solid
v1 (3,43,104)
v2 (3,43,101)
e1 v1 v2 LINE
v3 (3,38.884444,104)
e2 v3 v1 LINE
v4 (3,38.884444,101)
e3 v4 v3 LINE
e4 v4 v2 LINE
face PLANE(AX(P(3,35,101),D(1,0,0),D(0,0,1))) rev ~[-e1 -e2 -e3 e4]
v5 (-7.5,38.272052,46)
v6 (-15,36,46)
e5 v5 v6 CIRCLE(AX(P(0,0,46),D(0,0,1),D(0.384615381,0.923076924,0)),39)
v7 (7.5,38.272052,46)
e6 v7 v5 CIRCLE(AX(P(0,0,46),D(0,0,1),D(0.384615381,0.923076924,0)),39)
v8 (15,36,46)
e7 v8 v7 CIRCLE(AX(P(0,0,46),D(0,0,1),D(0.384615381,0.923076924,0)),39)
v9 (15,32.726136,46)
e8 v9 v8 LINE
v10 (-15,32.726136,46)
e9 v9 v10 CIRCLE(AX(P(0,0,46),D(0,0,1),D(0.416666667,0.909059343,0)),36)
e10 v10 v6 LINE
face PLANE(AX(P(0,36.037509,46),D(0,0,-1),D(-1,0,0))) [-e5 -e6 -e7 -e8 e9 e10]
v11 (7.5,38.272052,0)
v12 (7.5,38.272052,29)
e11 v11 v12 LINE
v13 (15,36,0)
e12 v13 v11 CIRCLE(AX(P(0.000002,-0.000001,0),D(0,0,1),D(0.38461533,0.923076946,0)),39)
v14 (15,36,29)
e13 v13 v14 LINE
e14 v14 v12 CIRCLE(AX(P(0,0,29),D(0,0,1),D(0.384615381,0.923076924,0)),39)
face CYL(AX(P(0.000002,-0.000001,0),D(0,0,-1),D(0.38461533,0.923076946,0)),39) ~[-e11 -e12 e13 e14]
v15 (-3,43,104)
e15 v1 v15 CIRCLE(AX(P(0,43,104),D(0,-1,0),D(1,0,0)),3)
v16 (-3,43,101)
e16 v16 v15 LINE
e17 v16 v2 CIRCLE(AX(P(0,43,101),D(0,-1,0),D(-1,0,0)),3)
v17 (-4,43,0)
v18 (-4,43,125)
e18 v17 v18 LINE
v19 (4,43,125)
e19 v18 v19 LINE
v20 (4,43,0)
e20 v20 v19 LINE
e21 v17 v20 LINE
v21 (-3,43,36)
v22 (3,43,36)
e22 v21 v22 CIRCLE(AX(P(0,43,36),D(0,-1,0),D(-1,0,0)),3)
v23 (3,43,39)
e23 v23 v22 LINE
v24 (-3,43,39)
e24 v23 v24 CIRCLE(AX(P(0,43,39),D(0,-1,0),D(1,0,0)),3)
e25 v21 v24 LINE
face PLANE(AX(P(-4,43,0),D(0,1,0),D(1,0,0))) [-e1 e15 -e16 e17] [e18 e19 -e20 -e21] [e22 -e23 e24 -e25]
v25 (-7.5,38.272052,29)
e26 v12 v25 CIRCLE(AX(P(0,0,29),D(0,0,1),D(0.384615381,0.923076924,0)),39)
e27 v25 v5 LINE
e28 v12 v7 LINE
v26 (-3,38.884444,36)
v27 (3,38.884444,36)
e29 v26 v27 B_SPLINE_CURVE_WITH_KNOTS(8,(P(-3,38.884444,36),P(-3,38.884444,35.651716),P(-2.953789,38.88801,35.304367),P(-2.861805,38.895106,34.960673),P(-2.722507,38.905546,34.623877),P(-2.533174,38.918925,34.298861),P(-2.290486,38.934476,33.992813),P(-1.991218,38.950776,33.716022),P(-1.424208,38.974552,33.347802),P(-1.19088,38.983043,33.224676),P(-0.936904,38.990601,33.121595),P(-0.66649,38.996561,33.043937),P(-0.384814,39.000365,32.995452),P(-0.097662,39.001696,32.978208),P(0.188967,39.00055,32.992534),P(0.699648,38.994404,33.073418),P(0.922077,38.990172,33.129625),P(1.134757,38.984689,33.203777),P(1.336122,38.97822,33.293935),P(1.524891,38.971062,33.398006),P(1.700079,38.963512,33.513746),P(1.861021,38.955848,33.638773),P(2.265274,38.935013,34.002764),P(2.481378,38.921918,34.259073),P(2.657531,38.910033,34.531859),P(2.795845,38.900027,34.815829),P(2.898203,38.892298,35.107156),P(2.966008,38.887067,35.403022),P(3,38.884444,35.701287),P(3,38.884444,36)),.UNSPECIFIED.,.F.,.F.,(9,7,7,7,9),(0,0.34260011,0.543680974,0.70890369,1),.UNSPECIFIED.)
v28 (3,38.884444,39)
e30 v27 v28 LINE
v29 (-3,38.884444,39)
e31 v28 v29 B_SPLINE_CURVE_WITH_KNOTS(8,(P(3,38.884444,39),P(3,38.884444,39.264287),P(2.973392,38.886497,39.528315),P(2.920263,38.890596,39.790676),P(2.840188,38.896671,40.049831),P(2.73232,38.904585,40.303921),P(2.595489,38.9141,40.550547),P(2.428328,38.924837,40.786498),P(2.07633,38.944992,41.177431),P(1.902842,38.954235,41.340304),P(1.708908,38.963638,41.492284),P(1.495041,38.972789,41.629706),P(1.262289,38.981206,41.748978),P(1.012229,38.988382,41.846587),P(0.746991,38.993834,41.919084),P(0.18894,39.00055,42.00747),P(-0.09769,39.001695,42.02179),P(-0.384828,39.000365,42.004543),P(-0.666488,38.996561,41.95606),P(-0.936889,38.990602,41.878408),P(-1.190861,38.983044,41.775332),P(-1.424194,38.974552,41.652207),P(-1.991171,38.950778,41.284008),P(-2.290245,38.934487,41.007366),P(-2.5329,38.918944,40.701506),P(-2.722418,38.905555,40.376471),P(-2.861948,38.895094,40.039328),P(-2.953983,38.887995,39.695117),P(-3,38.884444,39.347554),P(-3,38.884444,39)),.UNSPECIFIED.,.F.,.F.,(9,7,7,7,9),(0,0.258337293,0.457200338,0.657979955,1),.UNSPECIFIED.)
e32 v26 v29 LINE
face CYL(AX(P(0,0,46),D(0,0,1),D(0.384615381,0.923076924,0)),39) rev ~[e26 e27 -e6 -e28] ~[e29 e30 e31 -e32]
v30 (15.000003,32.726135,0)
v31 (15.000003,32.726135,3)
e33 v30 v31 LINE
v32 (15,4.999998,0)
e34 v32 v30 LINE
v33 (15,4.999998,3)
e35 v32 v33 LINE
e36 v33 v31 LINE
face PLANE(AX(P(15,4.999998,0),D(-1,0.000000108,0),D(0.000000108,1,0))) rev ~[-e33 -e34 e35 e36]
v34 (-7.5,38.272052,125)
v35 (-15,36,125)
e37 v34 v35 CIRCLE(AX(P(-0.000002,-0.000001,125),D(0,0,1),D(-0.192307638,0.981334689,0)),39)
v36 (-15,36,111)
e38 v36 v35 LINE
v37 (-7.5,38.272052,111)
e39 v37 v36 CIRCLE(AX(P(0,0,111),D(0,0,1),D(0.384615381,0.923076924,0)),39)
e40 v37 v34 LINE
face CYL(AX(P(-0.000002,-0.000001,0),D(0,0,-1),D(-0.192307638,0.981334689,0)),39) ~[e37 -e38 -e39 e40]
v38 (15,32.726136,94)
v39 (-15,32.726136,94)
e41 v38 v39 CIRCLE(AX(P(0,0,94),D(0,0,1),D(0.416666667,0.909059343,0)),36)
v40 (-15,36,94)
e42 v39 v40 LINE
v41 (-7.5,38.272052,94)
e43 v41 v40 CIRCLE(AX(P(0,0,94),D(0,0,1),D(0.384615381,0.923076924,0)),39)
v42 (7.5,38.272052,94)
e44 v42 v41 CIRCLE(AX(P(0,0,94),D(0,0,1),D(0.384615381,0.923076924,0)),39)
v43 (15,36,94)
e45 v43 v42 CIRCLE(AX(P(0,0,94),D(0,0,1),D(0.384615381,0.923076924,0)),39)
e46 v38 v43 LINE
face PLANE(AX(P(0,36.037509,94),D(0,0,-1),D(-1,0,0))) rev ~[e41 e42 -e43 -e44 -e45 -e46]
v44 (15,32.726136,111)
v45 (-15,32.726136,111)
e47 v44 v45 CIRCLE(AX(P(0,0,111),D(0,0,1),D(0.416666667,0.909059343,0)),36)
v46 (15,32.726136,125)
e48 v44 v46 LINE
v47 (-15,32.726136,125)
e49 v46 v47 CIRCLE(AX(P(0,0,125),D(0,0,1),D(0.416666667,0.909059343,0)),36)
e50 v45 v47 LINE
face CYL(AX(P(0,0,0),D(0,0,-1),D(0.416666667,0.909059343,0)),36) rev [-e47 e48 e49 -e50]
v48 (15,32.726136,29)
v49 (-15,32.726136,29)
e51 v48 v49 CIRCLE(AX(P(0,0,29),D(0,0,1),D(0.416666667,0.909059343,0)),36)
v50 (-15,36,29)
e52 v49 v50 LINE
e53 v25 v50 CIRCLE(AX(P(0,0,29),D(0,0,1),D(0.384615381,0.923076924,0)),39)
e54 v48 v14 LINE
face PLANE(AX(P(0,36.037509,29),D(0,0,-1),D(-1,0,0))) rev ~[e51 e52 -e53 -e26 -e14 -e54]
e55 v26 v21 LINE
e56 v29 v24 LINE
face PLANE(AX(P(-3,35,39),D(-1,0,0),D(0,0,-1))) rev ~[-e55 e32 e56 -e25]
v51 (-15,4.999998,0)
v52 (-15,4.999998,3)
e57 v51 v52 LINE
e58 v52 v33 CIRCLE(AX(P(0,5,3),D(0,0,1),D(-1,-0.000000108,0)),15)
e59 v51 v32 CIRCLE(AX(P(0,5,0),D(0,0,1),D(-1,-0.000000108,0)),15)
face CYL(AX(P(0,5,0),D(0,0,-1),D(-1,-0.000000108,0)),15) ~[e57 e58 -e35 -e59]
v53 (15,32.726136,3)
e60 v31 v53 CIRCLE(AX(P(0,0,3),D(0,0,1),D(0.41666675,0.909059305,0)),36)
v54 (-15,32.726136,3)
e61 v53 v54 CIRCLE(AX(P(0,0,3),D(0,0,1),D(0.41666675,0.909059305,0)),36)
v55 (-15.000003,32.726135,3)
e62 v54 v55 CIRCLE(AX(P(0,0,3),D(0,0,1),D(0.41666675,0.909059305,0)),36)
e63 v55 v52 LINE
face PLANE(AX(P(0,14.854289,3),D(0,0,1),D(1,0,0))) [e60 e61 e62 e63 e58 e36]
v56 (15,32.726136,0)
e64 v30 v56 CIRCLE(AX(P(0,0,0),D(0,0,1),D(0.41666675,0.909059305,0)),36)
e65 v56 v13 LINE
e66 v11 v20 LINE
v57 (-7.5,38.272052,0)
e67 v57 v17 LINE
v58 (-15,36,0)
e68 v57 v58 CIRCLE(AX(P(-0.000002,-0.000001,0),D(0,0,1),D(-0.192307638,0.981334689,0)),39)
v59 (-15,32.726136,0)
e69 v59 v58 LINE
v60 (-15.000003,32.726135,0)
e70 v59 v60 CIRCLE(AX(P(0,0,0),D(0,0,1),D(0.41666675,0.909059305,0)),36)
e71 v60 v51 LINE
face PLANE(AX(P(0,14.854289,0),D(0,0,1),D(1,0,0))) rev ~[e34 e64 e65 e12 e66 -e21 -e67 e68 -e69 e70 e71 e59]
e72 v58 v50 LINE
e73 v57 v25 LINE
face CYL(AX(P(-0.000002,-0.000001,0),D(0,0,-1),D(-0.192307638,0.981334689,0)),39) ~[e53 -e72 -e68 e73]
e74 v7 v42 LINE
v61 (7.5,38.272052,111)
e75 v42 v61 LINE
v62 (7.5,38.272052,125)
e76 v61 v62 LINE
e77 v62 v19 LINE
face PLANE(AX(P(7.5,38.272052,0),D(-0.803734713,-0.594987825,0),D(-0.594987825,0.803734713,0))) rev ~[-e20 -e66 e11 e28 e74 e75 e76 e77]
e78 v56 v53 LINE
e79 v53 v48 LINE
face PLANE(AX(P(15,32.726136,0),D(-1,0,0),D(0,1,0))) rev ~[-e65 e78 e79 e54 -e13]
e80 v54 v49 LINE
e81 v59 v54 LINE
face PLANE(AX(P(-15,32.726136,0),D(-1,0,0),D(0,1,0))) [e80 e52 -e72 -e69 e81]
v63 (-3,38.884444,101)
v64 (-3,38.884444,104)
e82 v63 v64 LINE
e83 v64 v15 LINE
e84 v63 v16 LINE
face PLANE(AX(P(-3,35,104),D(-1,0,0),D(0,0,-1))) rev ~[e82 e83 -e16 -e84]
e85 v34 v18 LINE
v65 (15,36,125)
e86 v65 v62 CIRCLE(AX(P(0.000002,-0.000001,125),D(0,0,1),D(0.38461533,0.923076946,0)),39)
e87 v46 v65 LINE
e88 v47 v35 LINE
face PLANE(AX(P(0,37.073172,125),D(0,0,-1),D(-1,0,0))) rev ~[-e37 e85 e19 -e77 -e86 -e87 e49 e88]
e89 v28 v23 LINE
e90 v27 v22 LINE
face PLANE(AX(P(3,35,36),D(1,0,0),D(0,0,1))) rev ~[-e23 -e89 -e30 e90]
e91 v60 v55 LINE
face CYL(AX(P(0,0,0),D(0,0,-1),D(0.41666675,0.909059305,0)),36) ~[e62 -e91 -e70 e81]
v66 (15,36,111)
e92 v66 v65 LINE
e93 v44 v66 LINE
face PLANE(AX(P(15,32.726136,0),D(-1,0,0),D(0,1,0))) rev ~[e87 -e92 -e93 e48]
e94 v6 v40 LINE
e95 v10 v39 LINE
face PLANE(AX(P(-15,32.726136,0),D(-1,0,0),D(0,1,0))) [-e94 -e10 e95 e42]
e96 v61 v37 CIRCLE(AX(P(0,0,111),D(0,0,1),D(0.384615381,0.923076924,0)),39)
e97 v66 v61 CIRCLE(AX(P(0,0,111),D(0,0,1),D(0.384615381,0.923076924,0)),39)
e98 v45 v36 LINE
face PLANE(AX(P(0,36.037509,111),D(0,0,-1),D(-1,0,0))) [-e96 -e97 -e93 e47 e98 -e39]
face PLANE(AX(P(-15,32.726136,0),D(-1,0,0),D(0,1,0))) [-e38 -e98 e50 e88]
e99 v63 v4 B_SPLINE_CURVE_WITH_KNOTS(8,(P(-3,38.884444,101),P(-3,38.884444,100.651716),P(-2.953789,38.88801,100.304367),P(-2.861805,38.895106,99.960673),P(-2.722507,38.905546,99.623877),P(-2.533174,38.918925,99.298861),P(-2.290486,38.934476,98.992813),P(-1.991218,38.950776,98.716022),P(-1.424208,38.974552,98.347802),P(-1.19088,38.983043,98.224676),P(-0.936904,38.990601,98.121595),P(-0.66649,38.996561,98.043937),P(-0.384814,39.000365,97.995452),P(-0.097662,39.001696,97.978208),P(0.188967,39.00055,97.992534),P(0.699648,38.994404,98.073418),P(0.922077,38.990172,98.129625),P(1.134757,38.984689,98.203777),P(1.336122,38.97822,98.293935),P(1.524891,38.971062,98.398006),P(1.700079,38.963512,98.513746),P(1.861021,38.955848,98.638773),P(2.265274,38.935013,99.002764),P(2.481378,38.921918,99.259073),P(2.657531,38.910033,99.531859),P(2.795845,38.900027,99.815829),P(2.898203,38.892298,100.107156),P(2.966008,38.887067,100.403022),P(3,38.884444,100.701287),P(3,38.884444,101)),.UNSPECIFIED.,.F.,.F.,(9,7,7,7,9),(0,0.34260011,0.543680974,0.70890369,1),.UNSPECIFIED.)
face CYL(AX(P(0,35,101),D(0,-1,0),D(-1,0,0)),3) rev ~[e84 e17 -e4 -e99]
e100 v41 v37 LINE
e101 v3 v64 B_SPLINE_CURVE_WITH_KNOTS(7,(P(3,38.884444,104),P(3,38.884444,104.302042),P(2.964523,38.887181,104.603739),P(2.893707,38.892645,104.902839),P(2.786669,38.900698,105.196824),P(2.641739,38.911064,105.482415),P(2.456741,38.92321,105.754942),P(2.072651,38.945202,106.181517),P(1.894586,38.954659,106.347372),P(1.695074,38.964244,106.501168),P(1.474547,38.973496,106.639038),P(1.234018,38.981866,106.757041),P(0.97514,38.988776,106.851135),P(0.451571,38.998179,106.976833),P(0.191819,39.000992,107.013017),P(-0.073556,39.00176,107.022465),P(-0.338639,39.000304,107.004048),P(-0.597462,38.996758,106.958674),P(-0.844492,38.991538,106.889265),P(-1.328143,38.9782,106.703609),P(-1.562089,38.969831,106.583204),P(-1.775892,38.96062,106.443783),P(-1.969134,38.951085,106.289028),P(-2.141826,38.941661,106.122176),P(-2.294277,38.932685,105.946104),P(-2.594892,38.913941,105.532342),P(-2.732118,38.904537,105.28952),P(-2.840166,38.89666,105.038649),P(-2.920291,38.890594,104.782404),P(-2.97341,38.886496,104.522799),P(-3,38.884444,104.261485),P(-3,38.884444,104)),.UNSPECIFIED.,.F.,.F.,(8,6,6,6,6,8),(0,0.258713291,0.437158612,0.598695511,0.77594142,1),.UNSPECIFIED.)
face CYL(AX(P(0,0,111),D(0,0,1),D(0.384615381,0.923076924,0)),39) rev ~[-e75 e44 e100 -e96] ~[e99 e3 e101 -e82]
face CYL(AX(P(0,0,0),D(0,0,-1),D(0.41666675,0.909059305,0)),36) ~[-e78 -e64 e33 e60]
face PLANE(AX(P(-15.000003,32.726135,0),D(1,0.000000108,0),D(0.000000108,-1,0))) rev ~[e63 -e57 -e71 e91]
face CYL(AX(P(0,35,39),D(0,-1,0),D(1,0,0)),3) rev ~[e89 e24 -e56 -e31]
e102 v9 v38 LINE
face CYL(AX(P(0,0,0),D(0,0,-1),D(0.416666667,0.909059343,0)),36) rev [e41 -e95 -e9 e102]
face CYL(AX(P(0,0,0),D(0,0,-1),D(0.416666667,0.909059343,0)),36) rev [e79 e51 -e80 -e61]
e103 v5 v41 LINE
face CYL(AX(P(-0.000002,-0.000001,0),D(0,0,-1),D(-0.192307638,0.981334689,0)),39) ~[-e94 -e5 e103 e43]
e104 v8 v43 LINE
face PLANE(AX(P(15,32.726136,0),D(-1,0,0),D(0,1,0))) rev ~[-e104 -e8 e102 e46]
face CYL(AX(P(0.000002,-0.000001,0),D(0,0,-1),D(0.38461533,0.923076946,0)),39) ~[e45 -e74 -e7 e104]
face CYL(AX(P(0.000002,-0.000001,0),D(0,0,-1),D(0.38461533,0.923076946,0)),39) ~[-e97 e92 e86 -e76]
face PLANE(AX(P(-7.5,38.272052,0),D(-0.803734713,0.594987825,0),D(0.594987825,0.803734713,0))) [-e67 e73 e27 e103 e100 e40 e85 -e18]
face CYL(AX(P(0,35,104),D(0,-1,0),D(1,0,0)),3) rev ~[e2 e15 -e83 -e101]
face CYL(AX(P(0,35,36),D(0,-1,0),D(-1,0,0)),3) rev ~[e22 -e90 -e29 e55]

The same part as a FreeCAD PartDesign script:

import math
import FreeCAD as App
import Part
import Sketcher

V = App.Vector
Q = App.Units.Quantity

doc = App.newDocument("Part")
body = doc.addObject("PartDesign::Body", "Body")

sketch1 = body.newObject("Sketcher::SketchObject", "Sketch")
sketch1.AttachmentSupport = (doc.getObject("XY_Plane"), [""])
sketch1.MapMode = "FlatFace"
sketch1.addGeometry(Part.ArcOfCircle(Part.Circle(V(0, 0, 0), V(0, 0, 1), 36), math.radians(65.375682), math.radians(114.624318)), False)
sketch1.addGeometry(Part.LineSegment(V(15, 32.726136, 0), V(15, 36, 0)), False)
sketch1.addGeometry(Part.ArcOfCircle(Part.Circle(V(0.000002, -0.000001, 0), V(0, 0, 1), 39), math.radians(67.380138), math.radians(78.912514)), False)
sketch1.addGeometry(Part.LineSegment(V(7.5, 38.272052, 0), V(4, 43, 0)), False)
sketch1.addGeometry(Part.LineSegment(V(4, 43, 0), V(-4, 43, 0)), False)
sketch1.addGeometry(Part.LineSegment(V(-4, 43, 0), V(-7.5, 38.272052, 0)), False)
sketch1.addGeometry(Part.ArcOfCircle(Part.Circle(V(-0.000002, -0.000001, 0), V(0, 0, 1), 39), math.radians(101.087486), math.radians(112.619862)), False)
sketch1.addGeometry(Part.LineSegment(V(-15, 36, 0), V(-15, 32.726136, 0)), False)
sketch1.addConstraint(Sketcher.Constraint("Coincident", 0, 1, 1, 1))
sketch1.addConstraint(Sketcher.Constraint("Coincident", 1, 2, 2, 1))
sketch1.addConstraint(Sketcher.Constraint("Coincident", 2, 2, 3, 1))
sketch1.addConstraint(Sketcher.Constraint("Coincident", 3, 2, 4, 1))
sketch1.addConstraint(Sketcher.Constraint("Coincident", 4, 2, 5, 1))
sketch1.addConstraint(Sketcher.Constraint("Coincident", 5, 2, 6, 1))
sketch1.addConstraint(Sketcher.Constraint("Coincident", 6, 2, 7, 1))
sketch1.addConstraint(Sketcher.Constraint("Coincident", 7, 2, 0, 2))
sketch1.addConstraint(Sketcher.Constraint("Vertical", 1))
sketch1.addConstraint(Sketcher.Constraint("Horizontal", 4))
sketch1.addConstraint(Sketcher.Constraint("Vertical", 7))
sketch1.addConstraint(Sketcher.Constraint("Coincident", 0, 3, -1, 1))
sketch1.addConstraint(Sketcher.Constraint("Coincident", 2, 3, -1, 1))
sketch1.addConstraint(Sketcher.Constraint("Coincident", 6, 3, -1, 1))
sketch1.addConstraint(Sketcher.Constraint("Equal", 2, 6))
sketch1.addConstraint(Sketcher.Constraint("Horizontal", 2, 2, 5, 2))
sketch1.addConstraint(Sketcher.Constraint("Horizontal", 1, 2, 6, 2))
sketch1.addConstraint(Sketcher.Constraint("Equal", 3, 5))
sketch1.addConstraint(Sketcher.Constraint("Radius", 0, Q("36 mm")))
sketch1.addConstraint(Sketcher.Constraint("Radius", 2, Q("39 mm")))
sketch1.addConstraint(Sketcher.Constraint("DistanceX", 4, 2, 4, 1, Q("8 mm")))
sketch1.addConstraint(Sketcher.Constraint("DistanceX", -1, 1, 0, 1, Q("15 mm")))
sketch1.addConstraint(Sketcher.Constraint("DistanceY", -1, 1, 3, 2, Q("43 mm")))
sketch1.addConstraint(Sketcher.Constraint("DistanceX", 5, 2, 2, 2, Q("15 mm")))
pad1 = body.newObject("PartDesign::Pad", "Pad")
pad1.Profile = sketch1
pad1.Length = 125

sketch2 = body.newObject("Sketcher::SketchObject", "Sketch001")
sketch2.AttachmentSupport = (doc.getObject("XY_Plane"), [""])
sketch2.MapMode = "FlatFace"
sketch2.addGeometry(Part.ArcOfCircle(Part.Circle(V(0, 5, 0), V(0, 0, 1), 15), math.radians(-179.999994), math.radians(-0.000006)), False)
sketch2.addGeometry(Part.LineSegment(V(15, 4.999998, 0), V(15.000003, 32.726135, 0)), False)
sketch2.addGeometry(Part.ArcOfCircle(Part.Circle(V(0, 0, 0), V(0, 0, 1), 36), math.radians(65.375676), math.radians(114.624324)), False)
sketch2.addGeometry(Part.LineSegment(V(-15.000003, 32.726135, 0), V(-15, 4.999998, 0)), False)
sketch2.addConstraint(Sketcher.Constraint("Tangent", 0, 2, 1, 1))
sketch2.addConstraint(Sketcher.Constraint("Coincident", 1, 2, 2, 1))
sketch2.addConstraint(Sketcher.Constraint("Coincident", 2, 2, 3, 1))
sketch2.addConstraint(Sketcher.Constraint("Tangent", 3, 2, 0, 1))
sketch2.addConstraint(Sketcher.Constraint("Coincident", 2, 3, -1, 1))
sketch2.addConstraint(Sketcher.Constraint("Symmetric", 0, 2, 3, 2, -2))
sketch2.addConstraint(Sketcher.Constraint("Parallel", 1, 3))
sketch2.addConstraint(Sketcher.Constraint("Radius", 0, Q("15 mm")))
sketch2.addConstraint(Sketcher.Constraint("Radius", 2, Q("36 mm")))
sketch2.addConstraint(Sketcher.Constraint("DistanceY", -1, 1, 0, 3, Q("5 mm")))
pad2 = body.newObject("PartDesign::Pad", "Pad001")
pad2.Profile = sketch2
pad2.Length = 3

sketch3 = body.newObject("Sketcher::SketchObject", "Sketch002")
sketch3.AttachmentSupport = (doc.getObject("XY_Plane"), [""])
sketch3.MapMode = "FlatFace"
sketch3.AttachmentOffset = App.Placement(V(0, 0, 111), App.Rotation())
sketch3.addGeometry(Part.ArcOfCircle(Part.Circle(V(0, 0, 0), V(0, 0, 1), 36), math.radians(65.375682), math.radians(114.624318)), False)
sketch3.addGeometry(Part.LineSegment(V(15, 32.726136, 0), V(15, 36, 0)), False)
sketch3.addGeometry(Part.ArcOfCircle(Part.Circle(V(0, 0, 0), V(0, 0, 1), 39), math.radians(67.380135), math.radians(112.619865)), False)
sketch3.addGeometry(Part.LineSegment(V(-15, 36, 0), V(-15, 32.726136, 0)), False)
sketch3.addConstraint(Sketcher.Constraint("Coincident", 0, 1, 1, 1))
sketch3.addConstraint(Sketcher.Constraint("Coincident", 1, 2, 2, 1))
sketch3.addConstraint(Sketcher.Constraint("Coincident", 2, 2, 3, 1))
sketch3.addConstraint(Sketcher.Constraint("Coincident", 3, 2, 0, 2))
sketch3.addConstraint(Sketcher.Constraint("Vertical", 1))
sketch3.addConstraint(Sketcher.Constraint("Vertical", 3))
sketch3.addConstraint(Sketcher.Constraint("Coincident", 0, 3, -1, 1))
sketch3.addConstraint(Sketcher.Constraint("Coincident", 2, 3, -1, 1))
sketch3.addConstraint(Sketcher.Constraint("Horizontal", 1, 2, 2, 2))
sketch3.addConstraint(Sketcher.Constraint("Radius", 0, Q("36 mm")))
sketch3.addConstraint(Sketcher.Constraint("Radius", 2, Q("39 mm")))
sketch3.addConstraint(Sketcher.Constraint("DistanceX", -1, 1, 0, 1, Q("15 mm")))
pocket1 = body.newObject("PartDesign::Pocket", "Pocket")
pocket1.Profile = sketch3
pocket1.Length = 17

sketch4 = body.newObject("Sketcher::SketchObject", "Sketch003")
sketch4.AttachmentSupport = (doc.getObject("XY_Plane"), [""])
sketch4.MapMode = "FlatFace"
sketch4.AttachmentOffset = App.Placement(V(0, 0, 46), App.Rotation())
sketch4.addGeometry(Part.ArcOfCircle(Part.Circle(V(0, 0, 0), V(0, 0, 1), 36), math.radians(65.375682), math.radians(114.624318)), False)
sketch4.addGeometry(Part.LineSegment(V(15, 32.726136, 0), V(15, 36, 0)), False)
sketch4.addGeometry(Part.ArcOfCircle(Part.Circle(V(0, 0, 0), V(0, 0, 1), 39), math.radians(67.380135), math.radians(112.619865)), False)
sketch4.addGeometry(Part.LineSegment(V(-15, 36, 0), V(-15, 32.726136, 0)), False)
sketch4.addConstraint(Sketcher.Constraint("Coincident", 0, 1, 1, 1))
sketch4.addConstraint(Sketcher.Constraint("Coincident", 1, 2, 2, 1))
sketch4.addConstraint(Sketcher.Constraint("Coincident", 2, 2, 3, 1))
sketch4.addConstraint(Sketcher.Constraint("Coincident", 3, 2, 0, 2))
sketch4.addConstraint(Sketcher.Constraint("Vertical", 1))
sketch4.addConstraint(Sketcher.Constraint("Vertical", 3))
sketch4.addConstraint(Sketcher.Constraint("Coincident", 0, 3, -1, 1))
sketch4.addConstraint(Sketcher.Constraint("Coincident", 2, 3, -1, 1))
sketch4.addConstraint(Sketcher.Constraint("Horizontal", 1, 2, 2, 2))
sketch4.addConstraint(Sketcher.Constraint("Radius", 0, Q("36 mm")))
sketch4.addConstraint(Sketcher.Constraint("Radius", 2, Q("39 mm")))
sketch4.addConstraint(Sketcher.Constraint("DistanceX", -1, 1, 0, 1, Q("15 mm")))
pocket2 = body.newObject("PartDesign::Pocket", "Pocket001")
pocket2.Profile = sketch4
pocket2.Length = 17

sketch5 = body.newObject("Sketcher::SketchObject", "Sketch004")
sketch5.AttachmentSupport = (doc.getObject("XZ_Plane"), [""])
sketch5.MapMode = "FlatFace"
sketch5.AttachmentOffset = App.Placement(V(0, 0, -35), App.Rotation())
sketch5.addGeometry(Part.ArcOfCircle(Part.Circle(V(0, 104, 0), V(0, 0, 1), 3), math.radians(0), math.radians(180)), False)
sketch5.addGeometry(Part.LineSegment(V(-3, 104, 0), V(-3, 101, 0)), False)
sketch5.addGeometry(Part.ArcOfCircle(Part.Circle(V(0, 101, 0), V(0, 0, 1), 3), math.radians(180), math.radians(360)), False)
sketch5.addGeometry(Part.LineSegment(V(3, 101, 0), V(3, 104, 0)), False)
sketch5.addGeometry(Part.ArcOfCircle(Part.Circle(V(0, 39, 0), V(0, 0, 1), 3), math.radians(0), math.radians(180)), False)
sketch5.addGeometry(Part.LineSegment(V(-3, 39, 0), V(-3, 36, 0)), False)
sketch5.addGeometry(Part.ArcOfCircle(Part.Circle(V(0, 36, 0), V(0, 0, 1), 3), math.radians(180), math.radians(360)), False)
sketch5.addGeometry(Part.LineSegment(V(3, 36, 0), V(3, 39, 0)), False)
sketch5.addConstraint(Sketcher.Constraint("Tangent", 0, 2, 1, 1))
sketch5.addConstraint(Sketcher.Constraint("Tangent", 1, 2, 2, 1))
sketch5.addConstraint(Sketcher.Constraint("Tangent", 2, 2, 3, 1))
sketch5.addConstraint(Sketcher.Constraint("Tangent", 3, 2, 0, 1))
sketch5.addConstraint(Sketcher.Constraint("Tangent", 4, 2, 5, 1))
sketch5.addConstraint(Sketcher.Constraint("Tangent", 5, 2, 6, 1))
sketch5.addConstraint(Sketcher.Constraint("Tangent", 6, 2, 7, 1))
sketch5.addConstraint(Sketcher.Constraint("Tangent", 7, 2, 4, 1))
sketch5.addConstraint(Sketcher.Constraint("Vertical", 1))
sketch5.addConstraint(Sketcher.Constraint("Vertical", 3))
sketch5.addConstraint(Sketcher.Constraint("Vertical", 5))
sketch5.addConstraint(Sketcher.Constraint("Vertical", 7))
sketch5.addConstraint(Sketcher.Constraint("Equal", 2, 4))
sketch5.addConstraint(Sketcher.Constraint("PointOnObject", 0, 3, -2))
sketch5.addConstraint(Sketcher.Constraint("PointOnObject", 4, 3, -2))
sketch5.addConstraint(Sketcher.Constraint("Equal", 3, 5))
sketch5.addConstraint(Sketcher.Constraint("Radius", 0, Q("3 mm")))
sketch5.addConstraint(Sketcher.Constraint("DistanceY", 1, 2, 1, 1, Q("3 mm")))
sketch5.addConstraint(Sketcher.Constraint("DistanceY", -1, 1, 0, 3, Q("104 mm")))
sketch5.addConstraint(Sketcher.Constraint("DistanceY", -1, 1, 4, 3, Q("39 mm")))
pocket3 = body.newObject("PartDesign::Pocket", "Pocket002")
pocket3.Profile = sketch5
pocket3.Length = 20

doc.recompute()
